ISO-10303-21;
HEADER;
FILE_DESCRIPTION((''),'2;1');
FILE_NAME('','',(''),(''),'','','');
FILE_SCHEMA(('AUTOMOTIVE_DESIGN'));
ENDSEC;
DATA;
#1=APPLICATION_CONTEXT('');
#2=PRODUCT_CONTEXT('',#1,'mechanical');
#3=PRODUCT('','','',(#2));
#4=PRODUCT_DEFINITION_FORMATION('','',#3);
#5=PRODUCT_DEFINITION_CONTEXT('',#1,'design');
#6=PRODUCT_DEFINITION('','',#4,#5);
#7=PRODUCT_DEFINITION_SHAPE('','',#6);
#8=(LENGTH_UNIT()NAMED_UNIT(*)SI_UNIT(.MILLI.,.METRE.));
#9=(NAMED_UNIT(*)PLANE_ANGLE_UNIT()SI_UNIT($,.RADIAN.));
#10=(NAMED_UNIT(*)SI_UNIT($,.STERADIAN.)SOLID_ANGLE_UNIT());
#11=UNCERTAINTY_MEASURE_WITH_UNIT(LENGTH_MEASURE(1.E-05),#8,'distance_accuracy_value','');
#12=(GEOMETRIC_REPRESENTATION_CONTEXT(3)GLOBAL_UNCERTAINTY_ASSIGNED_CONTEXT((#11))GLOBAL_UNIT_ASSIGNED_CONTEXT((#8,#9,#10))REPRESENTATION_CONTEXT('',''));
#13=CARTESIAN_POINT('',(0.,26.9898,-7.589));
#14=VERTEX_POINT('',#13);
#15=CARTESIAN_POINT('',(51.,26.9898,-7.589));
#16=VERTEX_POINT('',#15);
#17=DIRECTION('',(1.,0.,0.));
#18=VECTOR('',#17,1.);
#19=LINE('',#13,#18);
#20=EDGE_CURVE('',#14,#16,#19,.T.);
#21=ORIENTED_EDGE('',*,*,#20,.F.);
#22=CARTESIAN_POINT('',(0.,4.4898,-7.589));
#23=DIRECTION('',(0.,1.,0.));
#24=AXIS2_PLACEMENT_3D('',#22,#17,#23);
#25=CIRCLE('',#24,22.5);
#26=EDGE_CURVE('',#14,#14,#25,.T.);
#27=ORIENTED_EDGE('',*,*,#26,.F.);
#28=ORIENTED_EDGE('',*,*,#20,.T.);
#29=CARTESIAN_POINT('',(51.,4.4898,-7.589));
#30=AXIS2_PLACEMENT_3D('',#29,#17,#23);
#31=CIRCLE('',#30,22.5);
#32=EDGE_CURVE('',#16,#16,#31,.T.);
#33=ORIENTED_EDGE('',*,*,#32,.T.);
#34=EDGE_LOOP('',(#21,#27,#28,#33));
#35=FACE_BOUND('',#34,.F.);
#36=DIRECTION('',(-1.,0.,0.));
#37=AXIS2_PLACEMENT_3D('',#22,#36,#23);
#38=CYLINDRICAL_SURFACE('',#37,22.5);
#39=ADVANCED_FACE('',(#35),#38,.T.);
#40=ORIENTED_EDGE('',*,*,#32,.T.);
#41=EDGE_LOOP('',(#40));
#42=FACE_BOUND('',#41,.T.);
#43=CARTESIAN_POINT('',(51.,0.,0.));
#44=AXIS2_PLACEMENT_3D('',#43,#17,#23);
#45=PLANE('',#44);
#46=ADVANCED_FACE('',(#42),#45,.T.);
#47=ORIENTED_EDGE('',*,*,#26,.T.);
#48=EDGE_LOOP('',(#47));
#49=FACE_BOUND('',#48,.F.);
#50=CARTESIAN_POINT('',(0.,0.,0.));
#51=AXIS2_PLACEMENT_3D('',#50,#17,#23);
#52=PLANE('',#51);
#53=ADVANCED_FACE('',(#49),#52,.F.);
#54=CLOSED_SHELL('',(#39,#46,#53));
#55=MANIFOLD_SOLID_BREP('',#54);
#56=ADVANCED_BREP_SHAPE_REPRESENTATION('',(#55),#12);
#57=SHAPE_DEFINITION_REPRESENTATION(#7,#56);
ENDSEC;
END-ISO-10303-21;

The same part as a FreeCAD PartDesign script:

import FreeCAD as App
import Part
import Sketcher
Q = App.Units.Quantity

doc = App.newDocument("Part")
body = doc.addObject("PartDesign::Body", "Body")

# Sketch on YZ plane
sketch1 = body.newObject("Sketcher::SketchObject", "Sketch")
sketch1.AttachmentSupport = (doc.getObject("YZ_Plane"), [""])
sketch1.MapMode = "FlatFace"
sketch1.addGeometry(Part.Circle(App.Vector(4, -8, 0), App.Vector(0, 0, 1), 22), False)
sketch1.addConstraint([
    Sketcher.Constraint("Diameter", 0, Q("45 mm")),
    Sketcher.Constraint("DistanceY", 0, 3, -1, 1, Q("7.589 mm")),
    Sketcher.Constraint("DistanceX", -1, 1, 0, 3, Q("4.4898 mm")),
])
pad1 = body.newObject("PartDesign::Pad", "Pad")
pad1.Profile = sketch1
pad1.Length = 51

doc.recompute()
